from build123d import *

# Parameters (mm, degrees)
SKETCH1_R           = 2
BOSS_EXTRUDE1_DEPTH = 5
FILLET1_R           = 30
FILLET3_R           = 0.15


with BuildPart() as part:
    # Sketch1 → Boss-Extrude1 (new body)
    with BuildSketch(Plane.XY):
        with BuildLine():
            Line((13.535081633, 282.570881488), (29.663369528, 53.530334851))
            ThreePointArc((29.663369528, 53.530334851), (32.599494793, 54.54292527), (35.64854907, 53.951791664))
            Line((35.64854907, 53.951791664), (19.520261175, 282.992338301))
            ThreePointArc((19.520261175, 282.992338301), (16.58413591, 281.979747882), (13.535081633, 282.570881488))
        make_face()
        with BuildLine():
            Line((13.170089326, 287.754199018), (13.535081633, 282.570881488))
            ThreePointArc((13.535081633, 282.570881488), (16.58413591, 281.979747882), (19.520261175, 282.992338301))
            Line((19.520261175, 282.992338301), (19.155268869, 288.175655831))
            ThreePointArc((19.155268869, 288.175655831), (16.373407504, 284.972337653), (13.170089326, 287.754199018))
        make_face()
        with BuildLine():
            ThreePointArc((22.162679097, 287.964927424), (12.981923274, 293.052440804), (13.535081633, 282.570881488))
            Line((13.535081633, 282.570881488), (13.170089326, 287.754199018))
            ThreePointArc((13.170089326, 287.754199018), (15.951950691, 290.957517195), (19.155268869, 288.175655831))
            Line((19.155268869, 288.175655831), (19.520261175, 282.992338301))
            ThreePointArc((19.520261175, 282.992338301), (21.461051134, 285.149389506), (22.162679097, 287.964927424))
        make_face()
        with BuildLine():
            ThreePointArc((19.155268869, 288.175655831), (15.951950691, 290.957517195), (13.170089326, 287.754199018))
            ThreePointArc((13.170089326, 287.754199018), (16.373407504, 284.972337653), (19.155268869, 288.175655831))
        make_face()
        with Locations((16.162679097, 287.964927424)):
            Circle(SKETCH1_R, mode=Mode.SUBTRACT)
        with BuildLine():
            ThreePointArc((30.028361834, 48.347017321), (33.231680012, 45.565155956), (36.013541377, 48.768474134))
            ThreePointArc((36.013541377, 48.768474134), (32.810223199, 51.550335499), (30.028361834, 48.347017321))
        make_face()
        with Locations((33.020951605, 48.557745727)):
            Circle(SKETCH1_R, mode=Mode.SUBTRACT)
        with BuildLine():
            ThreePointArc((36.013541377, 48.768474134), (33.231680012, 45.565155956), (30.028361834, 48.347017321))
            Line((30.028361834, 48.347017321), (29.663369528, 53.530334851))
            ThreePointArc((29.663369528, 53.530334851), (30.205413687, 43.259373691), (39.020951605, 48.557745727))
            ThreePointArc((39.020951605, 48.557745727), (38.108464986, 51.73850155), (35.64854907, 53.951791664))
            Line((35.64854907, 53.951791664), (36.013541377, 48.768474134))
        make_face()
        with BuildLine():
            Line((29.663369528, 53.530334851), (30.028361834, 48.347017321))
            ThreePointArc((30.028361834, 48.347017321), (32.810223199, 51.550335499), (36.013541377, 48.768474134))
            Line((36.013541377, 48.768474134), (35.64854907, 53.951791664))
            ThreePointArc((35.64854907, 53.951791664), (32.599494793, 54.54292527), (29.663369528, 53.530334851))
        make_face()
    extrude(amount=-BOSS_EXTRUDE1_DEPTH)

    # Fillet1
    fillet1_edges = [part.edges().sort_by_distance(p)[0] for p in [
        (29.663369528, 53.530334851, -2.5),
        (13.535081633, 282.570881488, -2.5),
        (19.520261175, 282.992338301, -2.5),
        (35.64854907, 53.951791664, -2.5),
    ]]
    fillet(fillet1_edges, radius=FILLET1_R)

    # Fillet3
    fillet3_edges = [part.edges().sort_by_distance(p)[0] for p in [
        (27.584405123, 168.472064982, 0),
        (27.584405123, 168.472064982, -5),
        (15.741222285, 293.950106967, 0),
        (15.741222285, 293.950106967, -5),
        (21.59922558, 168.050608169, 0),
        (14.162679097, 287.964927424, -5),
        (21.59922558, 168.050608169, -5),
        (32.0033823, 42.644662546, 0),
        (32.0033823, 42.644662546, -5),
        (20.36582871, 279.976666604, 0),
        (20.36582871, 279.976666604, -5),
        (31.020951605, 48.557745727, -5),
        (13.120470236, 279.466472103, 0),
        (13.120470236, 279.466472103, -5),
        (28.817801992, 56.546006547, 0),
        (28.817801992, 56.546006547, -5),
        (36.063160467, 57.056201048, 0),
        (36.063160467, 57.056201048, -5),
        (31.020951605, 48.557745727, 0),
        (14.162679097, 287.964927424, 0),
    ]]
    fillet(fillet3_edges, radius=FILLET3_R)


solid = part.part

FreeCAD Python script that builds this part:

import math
import FreeCAD as App
import Part
import Sketcher
from FreeCAD import Vector
Q = App.Units.Quantity


def edges_at(feature, points):
    """Names of the edges that pass closest to the given points."""
    edges = feature.Shape.Edges
    near = lambda p: min(range(len(edges)), key=lambda i: edges[i].distToShape(Part.Vertex(*p))[0])
    return sorted({f"Edge{near(p) + 1}" for p in points})

doc = App.newDocument("Part")
body = doc.addObject("PartDesign::Body", "Body")

sketch1 = body.newObject("Sketcher::SketchObject", "Sketch")
sketch1.AttachmentSupport = (doc.getObject("XY_Plane"), [""])
sketch1.MapMode = "FlatFace"
sketch1.addGeometry(Part.LineSegment(Vector(13.5, 282.6, 0), Vector(29.7, 53.5, 0)), False)
sketch1.addGeometry(Part.ArcOfCircle(Part.Circle(Vector(33, 48.6, 0), Vector(0, 0, 1), 6), math.radians(124), math.radians(360)), False)
sketch1.addGeometry(Part.ArcOfCircle(Part.Circle(Vector(33, 48.6, 0), Vector(0, 0, 1), 6), math.radians(0), math.radians(64)), False)
sketch1.addGeometry(Part.LineSegment(Vector(35.6, 54, 0), Vector(19.5, 283, 0)), False)
sketch1.addGeometry(Part.ArcOfCircle(Part.Circle(Vector(16.2, 288, 0), Vector(0, 0, 1), 6), math.radians(-56), math.radians(0)), False)
sketch1.addGeometry(Part.ArcOfCircle(Part.Circle(Vector(16.2, 288, 0), Vector(0, 0, 1), 6), math.radians(0), math.radians(244)), False)
sketch1.addGeometry(Part.Circle(Vector(16.2, 288, 0), Vector(0, 0, 1), 2), False)
sketch1.addGeometry(Part.Circle(Vector(33, 48.6, 0), Vector(0, 0, 1), 2), False)
sketch1.addConstraint(Sketcher.Constraint("Coincident", 0, 2, 1, 1))
sketch1.addConstraint(Sketcher.Constraint("Tangent", 1, 2, 2, 1))
sketch1.addConstraint(Sketcher.Constraint("Coincident", 2, 2, 3, 1))
sketch1.addConstraint(Sketcher.Constraint("Coincident", 3, 2, 4, 1))
sketch1.addConstraint(Sketcher.Constraint("Tangent", 4, 2, 5, 1))
sketch1.addConstraint(Sketcher.Constraint("Coincident", 5, 2, 0, 1))
sketch1.addConstraint(Sketcher.Constraint("Coincident", 6, 3, 4, 3))
sketch1.addConstraint(Sketcher.Constraint("Coincident", 7, 3, 1, 3))
sketch1.addConstraint(Sketcher.Constraint("Equal", 1, 2))
sketch1.addConstraint(Sketcher.Constraint("Equal", 2, 4))
sketch1.addConstraint(Sketcher.Constraint("Equal", 4, 5))
sketch1.addConstraint(Sketcher.Constraint("Equal", 6, 7))
sketch1.addConstraint(Sketcher.Constraint("Parallel", 0, 3))
sketch1.addConstraint(Sketcher.Constraint("Horizontal", 7, 3, 1, 2))
sketch1.addConstraint(Sketcher.Constraint("Horizontal", 6, 3, 4, 2))
sketch1.addConstraint(Sketcher.Constraint("Equal", 0, 3))
sketch1.addConstraint(Sketcher.Constraint("Diameter", 6, Q("4 mm")))
sketch1.addConstraint(Sketcher.Constraint("Radius", 1, Q("6 mm")))
sketch1.addConstraint(Sketcher.Constraint("DistanceX", -1, 1, 1, 3, Q("33.020952 mm")))
sketch1.addConstraint(Sketcher.Constraint("DistanceX", -1, 1, 4, 3, Q("16.162679 mm")))
sketch1.addConstraint(Sketcher.Constraint("DistanceX", -1, 1, 0, 2, Q("29.66337 mm")))
sketch1.addConstraint(Sketcher.Constraint("DistanceX", -1, 1, 2, 2, Q("35.648549 mm")))
sketch1.addConstraint(Sketcher.Constraint("DistanceY", -1, 1, 2, 2, Q("53.951792 mm")))
sketch1.addConstraint(Sketcher.Constraint("DistanceY", -1, 1, 3, 2, Q("282.992338 mm")))
pad1 = body.newObject("PartDesign::Pad", "Pad")
pad1.Profile = sketch1
pad1.Length = 5
pad1.Reversed = True
doc.recompute()

fillet = body.newObject("PartDesign::Fillet", "Fillet")
fillet.Base = (pad1, edges_at(pad1, [
    (29.663, 53.53, -2.5),
    (13.535, 282.571, -2.5),
    (19.52, 282.992, -2.5),
    (35.649, 53.952, -2.5),
]))
fillet.Radius = 30
doc.recompute()

fillet2 = body.newObject("PartDesign::Fillet", "Fillet001")
fillet2.Base = (fillet, edges_at(fillet, [
    (27.584, 168.472, 0),
    (27.584, 168.472, -5),
    (14.732, 293.792, 0),
    (14.732, 293.792, -5),
    (21.599, 168.051, 0),
    (14.163, 287.965, -5),
    (21.599, 168.051, -5),
    (32.003, 42.645, 0),
    (32.003, 42.645, -5),
    (20.366, 279.977, 0),
    (20.366, 279.977, -5),
    (31.021, 48.558, -5),
    (13.12, 279.466, 0),
    (13.12, 279.466, -5),
    (28.818, 56.546, 0),
    (28.818, 56.546, -5),
    (36.063, 57.056, 0),
    (36.063, 57.056, -5),
    (31.021, 48.558, 0),
    (14.163, 287.965, 0),
]))
fillet2.Radius = 0.15

doc.recompute()
